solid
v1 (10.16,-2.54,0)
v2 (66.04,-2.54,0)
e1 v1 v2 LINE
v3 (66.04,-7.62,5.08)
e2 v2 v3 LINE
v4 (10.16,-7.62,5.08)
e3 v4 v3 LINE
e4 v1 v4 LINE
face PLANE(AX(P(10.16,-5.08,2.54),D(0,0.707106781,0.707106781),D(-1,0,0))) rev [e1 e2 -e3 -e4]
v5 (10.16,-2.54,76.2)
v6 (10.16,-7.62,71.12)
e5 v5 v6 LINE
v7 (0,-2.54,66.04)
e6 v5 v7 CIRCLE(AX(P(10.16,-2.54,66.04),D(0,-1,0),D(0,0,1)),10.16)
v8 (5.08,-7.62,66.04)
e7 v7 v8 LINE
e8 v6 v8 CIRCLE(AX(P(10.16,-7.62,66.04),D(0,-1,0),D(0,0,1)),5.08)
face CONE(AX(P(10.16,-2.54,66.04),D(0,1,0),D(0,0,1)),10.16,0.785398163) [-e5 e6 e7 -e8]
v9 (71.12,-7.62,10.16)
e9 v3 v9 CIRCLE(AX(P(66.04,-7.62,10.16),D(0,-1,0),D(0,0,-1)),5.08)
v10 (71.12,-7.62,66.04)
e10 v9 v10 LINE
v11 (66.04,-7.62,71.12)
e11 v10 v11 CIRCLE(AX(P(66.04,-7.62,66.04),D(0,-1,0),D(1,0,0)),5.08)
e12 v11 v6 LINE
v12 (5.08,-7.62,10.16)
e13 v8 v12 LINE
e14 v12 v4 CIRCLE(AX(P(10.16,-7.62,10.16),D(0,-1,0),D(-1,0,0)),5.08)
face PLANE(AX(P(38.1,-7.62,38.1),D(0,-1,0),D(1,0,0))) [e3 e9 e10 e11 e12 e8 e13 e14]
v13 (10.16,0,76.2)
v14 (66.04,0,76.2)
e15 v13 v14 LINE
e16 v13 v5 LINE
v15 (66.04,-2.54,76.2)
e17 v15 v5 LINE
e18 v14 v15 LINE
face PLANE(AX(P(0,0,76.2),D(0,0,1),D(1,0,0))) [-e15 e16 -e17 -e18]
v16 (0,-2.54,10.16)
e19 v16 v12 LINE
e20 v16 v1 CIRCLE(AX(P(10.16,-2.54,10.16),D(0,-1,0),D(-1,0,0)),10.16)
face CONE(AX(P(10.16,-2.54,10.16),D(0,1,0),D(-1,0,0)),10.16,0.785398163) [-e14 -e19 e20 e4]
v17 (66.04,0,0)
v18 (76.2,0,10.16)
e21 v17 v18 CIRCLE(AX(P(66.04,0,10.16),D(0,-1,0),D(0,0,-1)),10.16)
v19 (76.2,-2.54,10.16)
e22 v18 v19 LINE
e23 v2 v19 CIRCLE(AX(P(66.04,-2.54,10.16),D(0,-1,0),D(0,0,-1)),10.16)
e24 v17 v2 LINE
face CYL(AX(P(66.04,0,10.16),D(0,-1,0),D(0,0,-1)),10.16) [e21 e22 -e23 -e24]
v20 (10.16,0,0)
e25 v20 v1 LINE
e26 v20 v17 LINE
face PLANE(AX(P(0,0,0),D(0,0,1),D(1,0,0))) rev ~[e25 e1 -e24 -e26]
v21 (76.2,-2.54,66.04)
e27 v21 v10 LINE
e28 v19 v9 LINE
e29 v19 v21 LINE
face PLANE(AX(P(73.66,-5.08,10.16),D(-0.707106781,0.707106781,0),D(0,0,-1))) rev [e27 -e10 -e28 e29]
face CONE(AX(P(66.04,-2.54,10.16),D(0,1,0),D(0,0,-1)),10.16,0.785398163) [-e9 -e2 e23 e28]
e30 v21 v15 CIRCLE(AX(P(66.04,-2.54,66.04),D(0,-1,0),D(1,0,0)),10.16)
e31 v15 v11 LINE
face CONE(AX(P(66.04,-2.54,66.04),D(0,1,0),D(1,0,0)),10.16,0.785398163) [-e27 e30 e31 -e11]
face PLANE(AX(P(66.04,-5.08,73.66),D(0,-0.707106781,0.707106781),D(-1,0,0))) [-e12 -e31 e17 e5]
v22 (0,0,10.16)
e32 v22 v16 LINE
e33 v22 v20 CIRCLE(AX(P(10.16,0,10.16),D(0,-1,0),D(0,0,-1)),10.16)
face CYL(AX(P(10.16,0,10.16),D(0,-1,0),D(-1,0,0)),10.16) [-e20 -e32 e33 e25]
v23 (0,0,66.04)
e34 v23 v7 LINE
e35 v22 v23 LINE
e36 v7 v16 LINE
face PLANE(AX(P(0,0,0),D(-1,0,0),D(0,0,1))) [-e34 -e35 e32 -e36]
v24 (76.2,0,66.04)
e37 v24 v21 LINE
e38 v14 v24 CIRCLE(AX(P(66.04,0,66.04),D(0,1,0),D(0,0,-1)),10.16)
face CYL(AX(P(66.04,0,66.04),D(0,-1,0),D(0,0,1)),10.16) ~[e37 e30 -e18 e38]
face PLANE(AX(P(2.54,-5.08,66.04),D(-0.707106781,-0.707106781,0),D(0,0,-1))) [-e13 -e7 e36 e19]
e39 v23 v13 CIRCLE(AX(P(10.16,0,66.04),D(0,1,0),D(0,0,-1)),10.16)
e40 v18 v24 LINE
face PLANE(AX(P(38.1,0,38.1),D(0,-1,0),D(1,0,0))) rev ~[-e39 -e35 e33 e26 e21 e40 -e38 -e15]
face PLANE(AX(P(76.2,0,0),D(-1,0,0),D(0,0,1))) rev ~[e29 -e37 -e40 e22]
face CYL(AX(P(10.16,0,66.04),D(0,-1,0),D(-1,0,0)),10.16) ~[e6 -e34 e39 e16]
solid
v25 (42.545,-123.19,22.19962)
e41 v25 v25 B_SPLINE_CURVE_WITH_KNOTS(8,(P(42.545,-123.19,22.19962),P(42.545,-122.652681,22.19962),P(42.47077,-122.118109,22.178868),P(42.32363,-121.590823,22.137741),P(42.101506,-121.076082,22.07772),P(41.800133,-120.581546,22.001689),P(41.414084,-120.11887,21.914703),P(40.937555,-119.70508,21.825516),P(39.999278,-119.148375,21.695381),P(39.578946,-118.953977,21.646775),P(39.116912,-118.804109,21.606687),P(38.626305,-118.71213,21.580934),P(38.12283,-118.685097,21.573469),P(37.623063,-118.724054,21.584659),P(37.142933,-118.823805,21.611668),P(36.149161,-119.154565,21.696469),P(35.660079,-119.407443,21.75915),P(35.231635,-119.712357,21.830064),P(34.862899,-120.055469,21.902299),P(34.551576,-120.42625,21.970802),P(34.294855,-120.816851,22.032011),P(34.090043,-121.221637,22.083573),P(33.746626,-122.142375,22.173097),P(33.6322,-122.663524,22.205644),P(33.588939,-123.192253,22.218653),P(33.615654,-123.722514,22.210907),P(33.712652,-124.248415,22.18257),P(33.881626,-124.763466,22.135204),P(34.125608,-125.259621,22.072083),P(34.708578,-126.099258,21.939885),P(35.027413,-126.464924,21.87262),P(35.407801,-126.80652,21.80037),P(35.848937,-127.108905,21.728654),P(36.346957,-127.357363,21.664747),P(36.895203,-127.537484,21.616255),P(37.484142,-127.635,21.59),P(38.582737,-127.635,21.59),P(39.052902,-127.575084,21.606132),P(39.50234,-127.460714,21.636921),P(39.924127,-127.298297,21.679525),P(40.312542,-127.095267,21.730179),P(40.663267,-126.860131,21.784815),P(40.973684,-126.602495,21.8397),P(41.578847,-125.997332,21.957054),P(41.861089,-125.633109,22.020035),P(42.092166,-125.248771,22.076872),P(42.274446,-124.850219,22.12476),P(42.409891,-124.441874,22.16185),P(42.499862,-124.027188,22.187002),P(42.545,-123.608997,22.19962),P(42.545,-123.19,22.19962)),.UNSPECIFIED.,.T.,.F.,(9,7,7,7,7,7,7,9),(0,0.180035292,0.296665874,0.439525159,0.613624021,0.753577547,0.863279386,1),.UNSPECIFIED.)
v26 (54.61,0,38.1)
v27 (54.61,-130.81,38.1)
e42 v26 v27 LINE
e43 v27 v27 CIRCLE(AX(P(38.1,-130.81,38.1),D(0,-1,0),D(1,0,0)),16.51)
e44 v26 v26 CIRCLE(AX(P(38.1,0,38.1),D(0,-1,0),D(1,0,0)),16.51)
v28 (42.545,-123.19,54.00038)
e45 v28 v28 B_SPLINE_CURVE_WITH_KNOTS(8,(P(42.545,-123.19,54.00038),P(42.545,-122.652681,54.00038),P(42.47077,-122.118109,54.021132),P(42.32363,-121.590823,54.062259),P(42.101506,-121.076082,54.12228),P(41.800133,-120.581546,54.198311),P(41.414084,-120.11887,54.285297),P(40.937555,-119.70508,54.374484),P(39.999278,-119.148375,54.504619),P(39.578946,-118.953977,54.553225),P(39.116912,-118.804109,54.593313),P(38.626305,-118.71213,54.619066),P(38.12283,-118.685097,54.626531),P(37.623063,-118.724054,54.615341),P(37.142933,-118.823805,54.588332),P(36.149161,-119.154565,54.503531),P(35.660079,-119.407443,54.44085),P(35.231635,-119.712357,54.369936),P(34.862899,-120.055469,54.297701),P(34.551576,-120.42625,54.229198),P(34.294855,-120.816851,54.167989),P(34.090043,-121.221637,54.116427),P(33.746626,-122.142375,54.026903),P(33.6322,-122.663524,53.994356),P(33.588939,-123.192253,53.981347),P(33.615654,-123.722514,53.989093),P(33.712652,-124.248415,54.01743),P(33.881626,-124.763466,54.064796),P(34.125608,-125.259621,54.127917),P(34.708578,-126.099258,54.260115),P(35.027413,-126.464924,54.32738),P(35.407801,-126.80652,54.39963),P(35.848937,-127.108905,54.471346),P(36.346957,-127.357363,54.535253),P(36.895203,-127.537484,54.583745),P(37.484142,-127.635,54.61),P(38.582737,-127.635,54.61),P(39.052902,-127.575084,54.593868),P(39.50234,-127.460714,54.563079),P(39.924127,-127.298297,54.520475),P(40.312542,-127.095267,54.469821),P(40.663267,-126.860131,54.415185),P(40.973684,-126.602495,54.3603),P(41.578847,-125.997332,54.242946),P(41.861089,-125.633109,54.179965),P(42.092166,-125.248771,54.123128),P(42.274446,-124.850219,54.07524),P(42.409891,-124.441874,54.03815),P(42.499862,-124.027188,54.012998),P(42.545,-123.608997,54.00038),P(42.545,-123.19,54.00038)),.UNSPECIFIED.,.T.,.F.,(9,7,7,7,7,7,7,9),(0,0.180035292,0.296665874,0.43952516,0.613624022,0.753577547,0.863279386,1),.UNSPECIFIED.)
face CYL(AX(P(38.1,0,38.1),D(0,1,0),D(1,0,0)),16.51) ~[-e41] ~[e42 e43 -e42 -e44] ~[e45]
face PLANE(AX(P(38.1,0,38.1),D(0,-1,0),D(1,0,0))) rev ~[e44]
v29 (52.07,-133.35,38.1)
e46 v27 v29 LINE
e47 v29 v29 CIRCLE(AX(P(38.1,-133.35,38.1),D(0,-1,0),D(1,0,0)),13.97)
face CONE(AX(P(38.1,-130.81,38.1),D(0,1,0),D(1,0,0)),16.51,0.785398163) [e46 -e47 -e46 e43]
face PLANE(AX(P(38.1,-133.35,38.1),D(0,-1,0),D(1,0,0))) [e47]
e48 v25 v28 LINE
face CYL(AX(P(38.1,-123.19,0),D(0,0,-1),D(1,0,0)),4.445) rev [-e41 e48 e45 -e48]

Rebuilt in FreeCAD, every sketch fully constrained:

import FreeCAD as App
import Part
import Sketcher

V = App.Vector
Q = App.Units.Quantity


def edges_at(feature, points):
    """Names of the edges that pass closest to the given points."""
    edges = feature.Shape.Edges
    near = lambda p: min(range(len(edges)), key=lambda i: edges[i].distToShape(Part.Vertex(*p))[0])
    return sorted({f"Edge{near(p) + 1}" for p in points})

doc = App.newDocument("Part")
params = doc.addObject("Spreadsheet::Sheet", "Params")
for row, (alias, value) in enumerate([
    ("sketch1_diameter", "1.3 in"),
    ("pad1_length", "5.25 in"),
    ("chamfer_size", "0.1 in"),
    ("sketch2_diameter", "0.35 in"),
    ("pocket1_length", "3 in"),
    ("sketch3_width", "3 in"),
    ("pad2_length", "0.3 in"),
    ("fillet_radius", "0.4 in"),
    ("fillet2_radius", "0.4 in"),
    ("fillet3_radius", "0.4 in"),
    ("fillet4_radius", "0.4 in"),
    ("chamfer2_size", "0.2 in"),
], start=1):
    params.set(f"A{row}", alias)
    params.set(f"B{row}", "=" + value)
    params.setAlias(f"B{row}", alias)

body = doc.addObject("PartDesign::Body", "Body")

# Sketch on XZ plane
sketch1 = body.newObject("Sketcher::SketchObject", "Sketch")
sketch1.AttachmentSupport = (doc.getObject("XZ_Plane"), [""])
sketch1.MapMode = "FlatFace"
sketch1.addGeometry(Part.Circle(V(38.1, 38.1, 0), V(0, 0, 1), 16.51), False)
sketch1.addConstraint([
    Sketcher.Constraint("Diameter", 0, Q("1.3 in")),
    Sketcher.Constraint("DistanceX", -1, 1, 0, 3, Q("1.5 in")),
    Sketcher.Constraint("DistanceY", -1, 1, 0, 3, Q("1.5 in")),
])
sketch1.setExpression("Constraints[0]", "Params.sketch1_diameter")
pad1 = body.newObject("PartDesign::Pad", "Pad")
pad1.Profile = sketch1
pad1.setExpression("Length", "Params.pad1_length")
doc.recompute()

chamfer = body.newObject("PartDesign::Chamfer", "Chamfer")
chamfer.Base = (pad1, edges_at(pad1, [(21.59, -133.35, 38.1)]))
chamfer.setExpression("Size", "Params.chamfer_size")

# Sketch on XY plane
sketch2 = body.newObject("Sketcher::SketchObject", "Sketch001")
sketch2.AttachmentSupport = (doc.getObject("XY_Plane"), [""])
sketch2.MapMode = "FlatFace"
sketch2.addGeometry(Part.Circle(V(38.1, -123.19, 0), V(0, 0, 1), 4.445), False)
sketch2.addConstraint([
    Sketcher.Constraint("Diameter", 0, Q("0.35 in")),
    Sketcher.Constraint("DistanceX", -1, 1, 0, 3, Q("1.5 in")),
    Sketcher.Constraint("DistanceY", 0, 3, -1, 1, Q("4.85 in")),
])
sketch2.setExpression("Constraints[0]", "Params.sketch2_diameter")
pocket1 = body.newObject("PartDesign::Pocket", "Pocket")
pocket1.Profile = sketch2
pocket1.setExpression("Length", "Params.pocket1_length")
pocket1.Reversed = True
body2 = doc.addObject("PartDesign::Body", "Body001")

# Sketch on XZ plane
sketch3 = body2.newObject("Sketcher::SketchObject", "Sketch002")
sketch3.AttachmentSupport = (doc.getObject("XZ_Plane001"), [""])
sketch3.MapMode = "FlatFace"
sketch3.addGeometry([
    Part.LineSegment(V(0, 76.2, 0), V(0, 0, 0)),
    Part.LineSegment(V(0, 0, 0), V(76.2, 0, 0)),
    Part.LineSegment(V(76.2, 0, 0), V(76.2, 76.2, 0)),
    Part.LineSegment(V(76.2, 76.2, 0), V(0, 76.2, 0)),
], False)
sketch3.addConstraint([
    Sketcher.Constraint("Coincident", 0, 2, 1, 1),
    Sketcher.Constraint("Coincident", 1, 2, 2, 1),
    Sketcher.Constraint("Coincident", 2, 2, 3, 1),
    Sketcher.Constraint("Coincident", 3, 2, 0, 1),
    Sketcher.Constraint("Vertical", 0),
    Sketcher.Constraint("Horizontal", 1),
    Sketcher.Constraint("Vertical", 2),
    Sketcher.Constraint("Horizontal", 3),
    Sketcher.Constraint("Coincident", 0, 2, -1, 1),
    Sketcher.Constraint("Equal", 3, 0),
    Sketcher.Constraint("DistanceX", 1, 1, 1, 2, Q("3 in")),
])
sketch3.setExpression("Constraints[10]", "Params.sketch3_width")
pad2 = body2.newObject("PartDesign::Pad", "Pad001")
pad2.Profile = sketch3
pad2.setExpression("Length", "Params.pad2_length")
doc.recompute()

fillet = body2.newObject("PartDesign::Fillet", "Fillet")
fillet.Base = (pad2, edges_at(pad2, [(0, -3.81, 0)]))
fillet.setExpression("Radius", "Params.fillet_radius")
doc.recompute()

fillet2 = body2.newObject("PartDesign::Fillet", "Fillet001")
fillet2.Base = (fillet, edges_at(fillet, [(76.2, -3.81, 0)]))
fillet2.setExpression("Radius", "Params.fillet2_radius")
doc.recompute()

fillet3 = body2.newObject("PartDesign::Fillet", "Fillet002")
fillet3.Base = (fillet2, edges_at(fillet2, [(0, -3.81, 76.2)]))
fillet3.setExpression("Radius", "Params.fillet3_radius")
doc.recompute()

fillet4 = body2.newObject("PartDesign::Fillet", "Fillet003")
fillet4.Base = (fillet3, edges_at(fillet3, [(76.2, -3.81, 76.2)]))
fillet4.setExpression("Radius", "Params.fillet4_radius")
doc.recompute()

chamfer2 = body2.newObject("PartDesign::Chamfer", "Chamfer001")
chamfer2.Base = (fillet4, edges_at(fillet4, [(38.1, -7.62, 0)]))
chamfer2.setExpression("Size", "Params.chamfer2_size")

doc.recompute()
